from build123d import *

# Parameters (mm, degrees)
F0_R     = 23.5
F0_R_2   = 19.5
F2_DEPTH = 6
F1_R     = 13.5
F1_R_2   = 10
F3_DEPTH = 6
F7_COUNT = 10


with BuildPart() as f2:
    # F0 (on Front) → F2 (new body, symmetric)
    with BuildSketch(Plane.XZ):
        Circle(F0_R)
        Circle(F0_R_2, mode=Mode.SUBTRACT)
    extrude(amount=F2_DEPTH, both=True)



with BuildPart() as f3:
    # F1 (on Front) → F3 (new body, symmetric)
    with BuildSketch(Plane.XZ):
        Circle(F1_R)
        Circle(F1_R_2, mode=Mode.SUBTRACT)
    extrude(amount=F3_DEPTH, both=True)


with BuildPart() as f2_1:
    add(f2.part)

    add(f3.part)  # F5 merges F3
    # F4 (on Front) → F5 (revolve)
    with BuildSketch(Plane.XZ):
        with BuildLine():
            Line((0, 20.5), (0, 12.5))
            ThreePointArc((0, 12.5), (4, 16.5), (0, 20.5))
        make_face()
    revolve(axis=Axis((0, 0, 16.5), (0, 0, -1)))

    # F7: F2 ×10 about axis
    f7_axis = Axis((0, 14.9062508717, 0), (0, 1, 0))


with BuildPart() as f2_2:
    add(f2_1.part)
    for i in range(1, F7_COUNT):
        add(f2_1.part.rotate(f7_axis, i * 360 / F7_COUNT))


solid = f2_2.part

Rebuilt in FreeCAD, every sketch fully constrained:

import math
import FreeCAD as App
import Part
import Sketcher
from FreeCAD import Vector

doc = App.newDocument("Part")
body = doc.addObject("PartDesign::Body", "Body")

sketch1 = body.newObject("Sketcher::SketchObject", "Sketch")
sketch1.AttachmentSupport = (doc.getObject("XZ_Plane"), [""])
sketch1.MapMode = "FlatFace"
sketch1.addGeometry(Part.Circle(Vector(0, 0, 0), Vector(0, 0, 1), 24), False)
sketch1.addGeometry(Part.Circle(Vector(0, 0, 0), Vector(0, 0, 1), 20), False)
sketch1.addConstraint(Sketcher.Constraint("Coincident", 0, 3, -1, 1))
sketch1.addConstraint(Sketcher.Constraint("Coincident", 1, 3, -1, 1))
sketch1.addConstraint(Sketcher.Constraint("Diameter", 0, 47.0))
sketch1.addConstraint(Sketcher.Constraint("Diameter", 1, 39.0))
pad1 = body.newObject("PartDesign::Pad", "Pad")
pad1.Profile = sketch1
pad1.Length = 12
pad1.Midplane = True
body2 = doc.addObject("PartDesign::Body", "Body001")

sketch2 = body2.newObject("Sketcher::SketchObject", "Sketch001")
sketch2.AttachmentSupport = (doc.getObject("XZ_Plane001"), [""])
sketch2.MapMode = "FlatFace"
sketch2.addGeometry(Part.Circle(Vector(0, 0, 0), Vector(0, 0, 1), 14), False)
sketch2.addGeometry(Part.Circle(Vector(0, 0, 0), Vector(0, 0, 1), 10), False)
sketch2.addConstraint(Sketcher.Constraint("Coincident", 0, 3, -1, 1))
sketch2.addConstraint(Sketcher.Constraint("Coincident", 1, 3, -1, 1))
sketch2.addConstraint(Sketcher.Constraint("Diameter", 0, 27.0))
sketch2.addConstraint(Sketcher.Constraint("Diameter", 1, 20.0))
pad2 = body2.newObject("PartDesign::Pad", "Pad001")
pad2.Profile = sketch2
pad2.Length = 12
pad2.Midplane = True
body.AllowCompound = True
doc.recompute()

boolean = body.newObject("PartDesign::Boolean", "Boolean")
boolean.Type = "Fuse"
boolean.addObjects([body2])

sketch3 = body.newObject("Sketcher::SketchObject", "Sketch002")
sketch3.AttachmentSupport = (doc.getObject("XZ_Plane"), [""])
sketch3.MapMode = "FlatFace"
sketch3.addGeometry(Part.LineSegment(Vector(0, 20.5, 0), Vector(0, 12.5, 0)), False)
sketch3.addGeometry(Part.ArcOfCircle(Part.Circle(Vector(0, 16.5, 0), Vector(0, 0, 1), 4), math.radians(-90), math.radians(90)), False)
sketch3.addConstraint(Sketcher.Constraint("Coincident", 0, 1, 1, 2))
sketch3.addConstraint(Sketcher.Constraint("Coincident", 1, 1, 0, 2))
sketch3.addConstraint(Sketcher.Constraint("Vertical", 0))
sketch3.addConstraint(Sketcher.Constraint("PointOnObject", 1, 3, -2))
sketch3.addConstraint(Sketcher.Constraint("PointOnObject", 0, 1, -2))
sketch3.addConstraint(Sketcher.Constraint("Radius", 1, 4.0))
sketch3.addConstraint(Sketcher.Constraint("DistanceY", -1, 1, 1, 3, 16.5))
revolution = body.newObject("PartDesign::Revolution", "Revolution")
revolution.Profile = sketch3
revolution.ReferenceAxis = (sketch3, ["V_Axis"])
revolution.Angle = 360
body3 = doc.addObject("PartDesign::Body", "Body002")
doc.recompute()

body3.BaseFeature = body
doc.recompute()

body4 = doc.addObject("PartDesign::Body", "Body003")
body4.BaseFeature = body
body4.Placement = App.Placement(Vector(0, 0, 0), App.Rotation(Vector(0, 1, 0), 36))
boolean2 = body3.newObject("PartDesign::Boolean", "Boolean001")
boolean2.Type = "Fuse"
boolean2.addObjects([body4])
doc.recompute()

body5 = doc.addObject("PartDesign::Body", "Body004")
body5.BaseFeature = body
body5.Placement = App.Placement(Vector(0, 0, 0), App.Rotation(Vector(0, 1, 0), 72))
boolean3 = body3.newObject("PartDesign::Boolean", "Boolean002")
boolean3.Type = "Fuse"
boolean3.addObjects([body5])
doc.recompute()

body6 = doc.addObject("PartDesign::Body", "Body005")
body6.BaseFeature = body
body6.Placement = App.Placement(Vector(0, 0, 0), App.Rotation(Vector(0, 1, 0), 108))
boolean4 = body3.newObject("PartDesign::Boolean", "Boolean003")
boolean4.Type = "Fuse"
boolean4.addObjects([body6])
doc.recompute()

body7 = doc.addObject("PartDesign::Body", "Body006")
body7.BaseFeature = body
body7.Placement = App.Placement(Vector(0, 0, 0), App.Rotation(Vector(0, 1, 0), 144))
boolean5 = body3.newObject("PartDesign::Boolean", "Boolean004")
boolean5.Type = "Fuse"
boolean5.addObjects([body7])
doc.recompute()

body8 = doc.addObject("PartDesign::Body", "Body007")
body8.BaseFeature = body
body8.Placement = App.Placement(Vector(0, 0, 0), App.Rotation(Vector(0, 1, 0), 180))
boolean6 = body3.newObject("PartDesign::Boolean", "Boolean005")
boolean6.Type = "Fuse"
boolean6.addObjects([body8])
doc.recompute()

body9 = doc.addObject("PartDesign::Body", "Body008")
body9.BaseFeature = body
body9.Placement = App.Placement(Vector(0, 0, 0), App.Rotation(Vector(0, 1, 0), 216))
boolean7 = body3.newObject("PartDesign::Boolean", "Boolean006")
boolean7.Type = "Fuse"
boolean7.addObjects([body9])
doc.recompute()

body10 = doc.addObject("PartDesign::Body", "Body009")
body10.BaseFeature = body
body10.Placement = App.Placement(Vector(0, 0, 0), App.Rotation(Vector(0, 1, 0), 252))
boolean8 = body3.newObject("PartDesign::Boolean", "Boolean007")
boolean8.Type = "Fuse"
boolean8.addObjects([body10])
doc.recompute()

body11 = doc.addObject("PartDesign::Body", "Body010")
body11.BaseFeature = body
body11.Placement = App.Placement(Vector(0, 0, 0), App.Rotation(Vector(0, 1, 0), 288))
boolean9 = body3.newObject("PartDesign::Boolean", "Boolean008")
boolean9.Type = "Fuse"
boolean9.addObjects([body11])
doc.recompute()

body.Placement = App.Placement(Vector(0, 0, 0), App.Rotation(Vector(0, 1, 0), 324))
boolean10 = body3.newObject("PartDesign::Boolean", "Boolean009")
boolean10.Type = "Fuse"
boolean10.addObjects([body])

doc.recompute()
